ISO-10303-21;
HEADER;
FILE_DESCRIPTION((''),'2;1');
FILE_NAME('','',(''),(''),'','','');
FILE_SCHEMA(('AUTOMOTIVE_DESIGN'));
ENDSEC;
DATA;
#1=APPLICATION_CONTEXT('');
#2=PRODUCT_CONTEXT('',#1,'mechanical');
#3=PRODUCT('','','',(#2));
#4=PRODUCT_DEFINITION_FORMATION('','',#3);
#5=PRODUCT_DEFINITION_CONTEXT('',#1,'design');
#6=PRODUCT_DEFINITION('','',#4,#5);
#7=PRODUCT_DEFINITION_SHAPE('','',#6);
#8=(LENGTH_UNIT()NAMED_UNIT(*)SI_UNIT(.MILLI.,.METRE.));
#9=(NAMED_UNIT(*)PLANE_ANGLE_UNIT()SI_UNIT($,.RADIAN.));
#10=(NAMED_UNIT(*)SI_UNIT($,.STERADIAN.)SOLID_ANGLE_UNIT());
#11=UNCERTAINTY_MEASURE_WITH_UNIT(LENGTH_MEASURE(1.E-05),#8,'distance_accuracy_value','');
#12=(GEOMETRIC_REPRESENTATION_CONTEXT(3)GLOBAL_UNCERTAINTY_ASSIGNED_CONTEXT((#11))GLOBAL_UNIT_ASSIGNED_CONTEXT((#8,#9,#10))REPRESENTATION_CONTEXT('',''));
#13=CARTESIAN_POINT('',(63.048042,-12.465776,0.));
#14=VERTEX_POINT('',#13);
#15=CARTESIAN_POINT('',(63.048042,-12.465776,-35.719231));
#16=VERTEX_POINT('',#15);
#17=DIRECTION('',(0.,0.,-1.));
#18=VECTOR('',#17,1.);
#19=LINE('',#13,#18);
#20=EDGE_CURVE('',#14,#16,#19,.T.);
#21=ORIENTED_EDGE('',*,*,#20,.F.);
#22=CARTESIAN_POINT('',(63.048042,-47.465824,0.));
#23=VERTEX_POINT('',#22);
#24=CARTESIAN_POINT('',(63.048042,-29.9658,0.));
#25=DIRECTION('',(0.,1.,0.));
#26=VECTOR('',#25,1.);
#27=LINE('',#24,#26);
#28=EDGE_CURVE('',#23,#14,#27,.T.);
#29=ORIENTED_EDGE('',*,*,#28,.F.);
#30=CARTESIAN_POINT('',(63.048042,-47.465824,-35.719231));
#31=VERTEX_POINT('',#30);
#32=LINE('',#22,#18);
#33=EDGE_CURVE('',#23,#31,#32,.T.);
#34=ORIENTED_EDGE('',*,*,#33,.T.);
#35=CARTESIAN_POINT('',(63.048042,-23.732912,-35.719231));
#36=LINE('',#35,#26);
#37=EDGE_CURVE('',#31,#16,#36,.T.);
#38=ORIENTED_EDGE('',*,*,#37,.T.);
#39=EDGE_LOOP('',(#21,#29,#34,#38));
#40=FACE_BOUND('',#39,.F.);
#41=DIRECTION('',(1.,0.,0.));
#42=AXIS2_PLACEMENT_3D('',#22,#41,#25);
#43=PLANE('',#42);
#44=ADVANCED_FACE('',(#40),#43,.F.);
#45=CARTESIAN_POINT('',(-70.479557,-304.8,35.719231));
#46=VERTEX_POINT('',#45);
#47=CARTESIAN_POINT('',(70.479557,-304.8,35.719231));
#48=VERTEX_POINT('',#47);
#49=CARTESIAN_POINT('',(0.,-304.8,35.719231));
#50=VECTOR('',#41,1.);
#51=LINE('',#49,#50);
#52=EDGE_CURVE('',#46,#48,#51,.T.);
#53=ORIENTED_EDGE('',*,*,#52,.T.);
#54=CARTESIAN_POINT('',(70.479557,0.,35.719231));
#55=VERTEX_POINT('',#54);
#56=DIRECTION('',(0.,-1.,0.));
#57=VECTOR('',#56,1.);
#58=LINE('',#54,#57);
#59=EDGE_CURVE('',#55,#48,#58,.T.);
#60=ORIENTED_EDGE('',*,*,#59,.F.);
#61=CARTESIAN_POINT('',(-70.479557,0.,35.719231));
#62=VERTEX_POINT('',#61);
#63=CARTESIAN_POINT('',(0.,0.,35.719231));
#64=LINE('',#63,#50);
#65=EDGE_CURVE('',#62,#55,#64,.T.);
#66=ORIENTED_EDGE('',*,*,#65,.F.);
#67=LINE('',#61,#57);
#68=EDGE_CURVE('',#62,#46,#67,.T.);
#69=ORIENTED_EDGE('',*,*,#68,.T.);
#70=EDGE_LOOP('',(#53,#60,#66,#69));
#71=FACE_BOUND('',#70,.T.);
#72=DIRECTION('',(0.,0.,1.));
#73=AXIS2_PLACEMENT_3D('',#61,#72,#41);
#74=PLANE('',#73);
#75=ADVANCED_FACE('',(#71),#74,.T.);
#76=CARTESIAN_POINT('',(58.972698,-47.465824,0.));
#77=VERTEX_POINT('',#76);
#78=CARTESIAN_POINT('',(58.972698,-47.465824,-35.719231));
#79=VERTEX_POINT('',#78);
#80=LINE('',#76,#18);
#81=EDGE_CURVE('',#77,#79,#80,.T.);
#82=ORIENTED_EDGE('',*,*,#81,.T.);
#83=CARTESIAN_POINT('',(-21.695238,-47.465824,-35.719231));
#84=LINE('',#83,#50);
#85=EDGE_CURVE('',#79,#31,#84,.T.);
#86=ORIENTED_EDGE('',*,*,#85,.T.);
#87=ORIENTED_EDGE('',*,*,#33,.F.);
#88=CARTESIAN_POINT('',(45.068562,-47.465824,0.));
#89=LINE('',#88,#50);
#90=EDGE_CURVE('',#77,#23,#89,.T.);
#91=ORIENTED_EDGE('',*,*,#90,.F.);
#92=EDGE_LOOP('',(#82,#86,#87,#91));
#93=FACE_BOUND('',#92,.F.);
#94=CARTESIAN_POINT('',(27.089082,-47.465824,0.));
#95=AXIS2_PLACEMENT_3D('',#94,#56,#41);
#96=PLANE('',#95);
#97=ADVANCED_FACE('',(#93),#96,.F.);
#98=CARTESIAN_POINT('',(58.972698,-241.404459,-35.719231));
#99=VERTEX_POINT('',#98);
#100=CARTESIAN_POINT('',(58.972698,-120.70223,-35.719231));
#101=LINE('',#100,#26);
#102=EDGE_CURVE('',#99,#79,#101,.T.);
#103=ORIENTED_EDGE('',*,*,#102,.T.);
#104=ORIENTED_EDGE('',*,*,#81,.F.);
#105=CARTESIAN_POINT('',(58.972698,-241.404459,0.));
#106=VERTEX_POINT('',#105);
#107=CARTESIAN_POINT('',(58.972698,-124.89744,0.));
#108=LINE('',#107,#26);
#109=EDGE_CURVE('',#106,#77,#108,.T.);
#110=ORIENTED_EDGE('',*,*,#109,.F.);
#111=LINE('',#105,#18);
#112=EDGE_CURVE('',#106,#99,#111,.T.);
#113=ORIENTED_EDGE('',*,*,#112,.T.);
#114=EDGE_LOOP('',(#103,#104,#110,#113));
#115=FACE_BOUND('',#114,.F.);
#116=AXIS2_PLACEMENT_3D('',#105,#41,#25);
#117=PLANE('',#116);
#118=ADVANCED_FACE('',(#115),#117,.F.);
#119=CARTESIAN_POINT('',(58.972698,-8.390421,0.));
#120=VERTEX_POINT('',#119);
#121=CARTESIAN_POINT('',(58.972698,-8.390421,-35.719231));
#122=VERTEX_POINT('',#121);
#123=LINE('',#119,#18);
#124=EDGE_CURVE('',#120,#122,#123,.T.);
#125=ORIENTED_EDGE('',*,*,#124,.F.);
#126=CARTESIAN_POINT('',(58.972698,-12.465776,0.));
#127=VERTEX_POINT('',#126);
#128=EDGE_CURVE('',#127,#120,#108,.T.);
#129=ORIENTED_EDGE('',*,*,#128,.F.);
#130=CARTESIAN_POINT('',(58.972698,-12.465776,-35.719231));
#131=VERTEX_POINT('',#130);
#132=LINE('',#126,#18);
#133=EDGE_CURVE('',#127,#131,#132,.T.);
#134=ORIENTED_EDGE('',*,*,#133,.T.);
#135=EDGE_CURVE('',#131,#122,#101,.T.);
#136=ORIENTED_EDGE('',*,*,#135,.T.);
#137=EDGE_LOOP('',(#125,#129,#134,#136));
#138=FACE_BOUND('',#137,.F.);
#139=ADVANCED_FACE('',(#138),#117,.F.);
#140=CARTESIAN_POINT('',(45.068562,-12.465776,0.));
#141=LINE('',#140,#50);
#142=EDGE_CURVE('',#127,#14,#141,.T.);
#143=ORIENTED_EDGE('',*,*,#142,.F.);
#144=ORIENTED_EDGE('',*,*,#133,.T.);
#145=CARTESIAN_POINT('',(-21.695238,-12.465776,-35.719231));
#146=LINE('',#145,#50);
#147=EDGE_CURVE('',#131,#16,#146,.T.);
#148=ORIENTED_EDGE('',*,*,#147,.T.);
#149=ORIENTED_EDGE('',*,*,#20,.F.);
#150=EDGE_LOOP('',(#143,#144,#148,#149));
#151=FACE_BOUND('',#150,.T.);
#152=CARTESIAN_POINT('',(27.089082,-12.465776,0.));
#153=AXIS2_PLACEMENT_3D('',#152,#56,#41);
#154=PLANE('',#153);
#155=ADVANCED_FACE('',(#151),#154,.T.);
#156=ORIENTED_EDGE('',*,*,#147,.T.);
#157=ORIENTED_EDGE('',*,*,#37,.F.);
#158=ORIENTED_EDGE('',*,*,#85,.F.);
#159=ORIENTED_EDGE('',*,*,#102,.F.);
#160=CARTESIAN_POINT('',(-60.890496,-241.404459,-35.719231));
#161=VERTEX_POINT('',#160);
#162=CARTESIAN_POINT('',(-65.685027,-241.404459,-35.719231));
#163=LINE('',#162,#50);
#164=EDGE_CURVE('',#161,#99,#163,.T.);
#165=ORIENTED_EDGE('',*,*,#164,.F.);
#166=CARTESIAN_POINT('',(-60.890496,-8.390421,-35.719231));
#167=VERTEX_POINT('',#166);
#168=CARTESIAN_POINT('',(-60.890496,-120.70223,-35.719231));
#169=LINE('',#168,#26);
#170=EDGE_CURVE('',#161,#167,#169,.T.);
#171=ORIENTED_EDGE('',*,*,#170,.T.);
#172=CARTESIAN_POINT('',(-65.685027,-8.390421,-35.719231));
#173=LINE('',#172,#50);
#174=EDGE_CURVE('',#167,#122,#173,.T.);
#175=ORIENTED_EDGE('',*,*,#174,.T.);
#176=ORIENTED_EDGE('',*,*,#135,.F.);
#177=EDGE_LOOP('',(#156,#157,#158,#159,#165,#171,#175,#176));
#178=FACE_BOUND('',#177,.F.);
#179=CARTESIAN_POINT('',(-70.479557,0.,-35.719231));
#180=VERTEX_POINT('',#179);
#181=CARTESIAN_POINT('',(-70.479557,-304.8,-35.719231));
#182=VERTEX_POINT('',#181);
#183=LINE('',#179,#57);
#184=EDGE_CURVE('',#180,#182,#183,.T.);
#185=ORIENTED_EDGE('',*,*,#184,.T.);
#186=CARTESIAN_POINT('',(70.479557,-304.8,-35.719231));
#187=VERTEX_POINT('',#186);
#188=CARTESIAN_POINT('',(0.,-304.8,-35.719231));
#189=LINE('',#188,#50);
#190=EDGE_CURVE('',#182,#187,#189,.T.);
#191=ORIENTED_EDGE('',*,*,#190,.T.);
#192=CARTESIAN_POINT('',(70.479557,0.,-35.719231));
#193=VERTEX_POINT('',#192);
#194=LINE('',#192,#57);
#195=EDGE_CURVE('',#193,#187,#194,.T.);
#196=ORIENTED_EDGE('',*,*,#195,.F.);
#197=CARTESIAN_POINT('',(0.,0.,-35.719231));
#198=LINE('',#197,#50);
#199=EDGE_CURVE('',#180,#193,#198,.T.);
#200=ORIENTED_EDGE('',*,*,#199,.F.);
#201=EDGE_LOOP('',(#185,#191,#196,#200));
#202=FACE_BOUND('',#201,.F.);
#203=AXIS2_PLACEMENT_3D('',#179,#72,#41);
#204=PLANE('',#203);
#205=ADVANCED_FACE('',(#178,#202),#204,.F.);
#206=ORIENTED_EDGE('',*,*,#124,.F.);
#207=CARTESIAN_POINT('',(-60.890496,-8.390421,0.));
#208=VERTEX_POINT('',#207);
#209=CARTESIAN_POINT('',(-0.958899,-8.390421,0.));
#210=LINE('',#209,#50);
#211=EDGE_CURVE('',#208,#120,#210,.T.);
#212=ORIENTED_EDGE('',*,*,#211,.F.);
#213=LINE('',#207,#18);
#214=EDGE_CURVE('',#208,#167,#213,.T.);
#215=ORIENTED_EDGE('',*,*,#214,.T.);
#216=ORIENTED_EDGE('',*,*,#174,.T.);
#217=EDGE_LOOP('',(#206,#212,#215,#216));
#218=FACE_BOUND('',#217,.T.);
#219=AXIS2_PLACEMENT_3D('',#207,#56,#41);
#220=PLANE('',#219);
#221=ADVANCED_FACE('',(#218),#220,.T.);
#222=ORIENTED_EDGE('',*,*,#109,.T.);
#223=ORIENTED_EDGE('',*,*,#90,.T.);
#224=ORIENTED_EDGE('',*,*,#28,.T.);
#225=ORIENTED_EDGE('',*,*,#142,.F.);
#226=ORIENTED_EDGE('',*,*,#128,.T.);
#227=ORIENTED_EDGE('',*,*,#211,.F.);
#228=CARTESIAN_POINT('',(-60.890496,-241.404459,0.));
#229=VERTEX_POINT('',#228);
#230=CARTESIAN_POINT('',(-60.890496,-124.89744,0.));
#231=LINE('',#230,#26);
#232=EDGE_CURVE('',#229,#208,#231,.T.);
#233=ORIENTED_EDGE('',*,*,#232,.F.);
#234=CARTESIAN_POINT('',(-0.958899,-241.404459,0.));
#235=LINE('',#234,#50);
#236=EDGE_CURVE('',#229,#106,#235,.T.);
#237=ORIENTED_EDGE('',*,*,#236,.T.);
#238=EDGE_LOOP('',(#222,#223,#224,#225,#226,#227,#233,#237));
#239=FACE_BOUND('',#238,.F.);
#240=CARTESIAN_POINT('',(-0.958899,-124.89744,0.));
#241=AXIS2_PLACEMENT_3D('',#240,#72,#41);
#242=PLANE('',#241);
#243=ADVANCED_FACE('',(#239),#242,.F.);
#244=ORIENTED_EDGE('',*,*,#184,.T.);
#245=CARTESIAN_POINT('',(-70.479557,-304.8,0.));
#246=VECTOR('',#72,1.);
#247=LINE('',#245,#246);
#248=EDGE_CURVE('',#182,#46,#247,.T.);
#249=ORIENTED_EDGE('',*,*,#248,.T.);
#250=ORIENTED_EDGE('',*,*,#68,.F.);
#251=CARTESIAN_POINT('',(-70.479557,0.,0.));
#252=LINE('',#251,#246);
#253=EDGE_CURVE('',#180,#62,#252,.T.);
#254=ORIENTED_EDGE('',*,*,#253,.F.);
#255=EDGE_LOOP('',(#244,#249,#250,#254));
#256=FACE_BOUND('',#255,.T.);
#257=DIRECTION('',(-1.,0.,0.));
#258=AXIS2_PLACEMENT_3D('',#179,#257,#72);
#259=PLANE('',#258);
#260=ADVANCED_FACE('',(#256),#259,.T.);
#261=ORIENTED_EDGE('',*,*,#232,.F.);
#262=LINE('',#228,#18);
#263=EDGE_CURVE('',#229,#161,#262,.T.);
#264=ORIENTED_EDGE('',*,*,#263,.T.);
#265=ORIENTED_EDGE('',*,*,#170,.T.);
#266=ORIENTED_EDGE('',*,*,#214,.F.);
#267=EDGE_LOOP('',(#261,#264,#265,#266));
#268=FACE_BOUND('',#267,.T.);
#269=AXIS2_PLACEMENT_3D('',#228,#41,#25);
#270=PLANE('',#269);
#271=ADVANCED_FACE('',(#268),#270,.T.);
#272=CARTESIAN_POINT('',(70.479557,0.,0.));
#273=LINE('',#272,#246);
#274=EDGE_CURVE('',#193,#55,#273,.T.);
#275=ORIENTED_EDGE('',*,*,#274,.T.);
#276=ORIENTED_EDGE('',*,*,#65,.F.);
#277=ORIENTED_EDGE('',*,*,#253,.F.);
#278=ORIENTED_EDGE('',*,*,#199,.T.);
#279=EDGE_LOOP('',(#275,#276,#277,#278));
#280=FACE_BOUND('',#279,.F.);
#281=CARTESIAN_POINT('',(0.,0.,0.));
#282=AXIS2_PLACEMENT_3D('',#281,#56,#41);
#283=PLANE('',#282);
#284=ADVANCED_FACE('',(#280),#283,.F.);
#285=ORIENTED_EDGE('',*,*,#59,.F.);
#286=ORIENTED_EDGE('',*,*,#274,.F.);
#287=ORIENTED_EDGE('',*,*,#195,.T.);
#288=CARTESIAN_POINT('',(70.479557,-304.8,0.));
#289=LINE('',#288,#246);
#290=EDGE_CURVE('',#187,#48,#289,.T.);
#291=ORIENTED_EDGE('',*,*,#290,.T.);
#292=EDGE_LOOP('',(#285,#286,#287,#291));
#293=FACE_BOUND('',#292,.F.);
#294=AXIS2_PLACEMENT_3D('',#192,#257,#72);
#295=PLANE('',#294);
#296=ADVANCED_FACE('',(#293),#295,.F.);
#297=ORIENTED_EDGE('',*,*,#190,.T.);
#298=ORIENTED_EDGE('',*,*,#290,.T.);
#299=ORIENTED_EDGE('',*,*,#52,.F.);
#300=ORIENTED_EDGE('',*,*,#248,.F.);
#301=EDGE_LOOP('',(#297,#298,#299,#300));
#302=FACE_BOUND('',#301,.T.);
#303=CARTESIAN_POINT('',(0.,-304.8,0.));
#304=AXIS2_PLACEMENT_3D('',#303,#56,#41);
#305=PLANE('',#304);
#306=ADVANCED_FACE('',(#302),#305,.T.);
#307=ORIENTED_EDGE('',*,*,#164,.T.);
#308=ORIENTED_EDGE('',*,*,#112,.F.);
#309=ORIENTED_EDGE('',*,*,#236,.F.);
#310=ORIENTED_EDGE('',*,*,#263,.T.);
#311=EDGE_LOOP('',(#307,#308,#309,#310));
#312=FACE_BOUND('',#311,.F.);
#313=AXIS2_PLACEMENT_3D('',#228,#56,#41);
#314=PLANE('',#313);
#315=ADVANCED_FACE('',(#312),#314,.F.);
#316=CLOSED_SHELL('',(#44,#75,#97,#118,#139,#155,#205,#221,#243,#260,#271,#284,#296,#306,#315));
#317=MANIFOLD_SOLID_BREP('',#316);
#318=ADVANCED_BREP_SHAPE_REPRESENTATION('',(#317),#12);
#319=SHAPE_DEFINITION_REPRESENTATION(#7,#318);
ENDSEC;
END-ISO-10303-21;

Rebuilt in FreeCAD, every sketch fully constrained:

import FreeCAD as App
import Part
import Sketcher
Q = App.Units.Quantity

doc = App.newDocument("Part")
body = doc.addObject("PartDesign::Body", "Body")

sketch1 = body.newObject("Sketcher::SketchObject", "Sketch")
sketch1.AttachmentSupport = (doc.getObject("XZ_Plane"), [""])
sketch1.MapMode = "FlatFace"
sketch1.addGeometry(Part.LineSegment(App.Vector(-70, 36, 0), App.Vector(-70, -36, 0)), False)
sketch1.addGeometry(Part.LineSegment(App.Vector(-70, -36, 0), App.Vector(70, -36, 0)), False)
sketch1.addGeometry(Part.LineSegment(App.Vector(70, -36, 0), App.Vector(70, 36, 0)), False)
sketch1.addGeometry(Part.LineSegment(App.Vector(70, 36, 0), App.Vector(-70, 36, 0)), False)
sketch1.addConstraint(Sketcher.Constraint("Coincident", 0, 2, 1, 1))
sketch1.addConstraint(Sketcher.Constraint("Coincident", 1, 2, 2, 1))
sketch1.addConstraint(Sketcher.Constraint("Coincident", 2, 2, 3, 1))
sketch1.addConstraint(Sketcher.Constraint("Coincident", 3, 2, 0, 1))
sketch1.addConstraint(Sketcher.Constraint("Vertical", 0))
sketch1.addConstraint(Sketcher.Constraint("Horizontal", 1))
sketch1.addConstraint(Sketcher.Constraint("Vertical", 2))
sketch1.addConstraint(Sketcher.Constraint("Horizontal", 3))
sketch1.addConstraint(Sketcher.Constraint("Symmetric", 0, 2, 2, 2, -1, 1))
sketch1.addConstraint(Sketcher.Constraint("DistanceY", 0, 2, 0, 1, Q("71.438462 mm")))
sketch1.addConstraint(Sketcher.Constraint("DistanceX", 1, 1, 1, 2, Q("140.959114 mm")))
pad1 = body.newObject("PartDesign::Pad", "Pad")
pad1.Profile = sketch1
pad1.Length = Q("12 in")

sketch2 = body.newObject("Sketcher::SketchObject", "Sketch001")
sketch2.AttachmentSupport = (doc.getObject("XY_Plane"), [""])
sketch2.MapMode = "FlatFace"
sketch2.addGeometry(Part.LineSegment(App.Vector(-61, -8, 0), App.Vector(-61, -241, 0)), False)
sketch2.addGeometry(Part.LineSegment(App.Vector(-61, -241, 0), App.Vector(59, -241, 0)), False)
sketch2.addGeometry(Part.LineSegment(App.Vector(59, -241, 0), App.Vector(59, -8, 0)), False)
sketch2.addGeometry(Part.LineSegment(App.Vector(59, -8, 0), App.Vector(-61, -8, 0)), False)
sketch2.addConstraint(Sketcher.Constraint("Coincident", 0, 2, 1, 1))
sketch2.addConstraint(Sketcher.Constraint("Coincident", 1, 2, 2, 1))
sketch2.addConstraint(Sketcher.Constraint("Coincident", 2, 2, 3, 1))
sketch2.addConstraint(Sketcher.Constraint("Coincident", 3, 2, 0, 1))
sketch2.addConstraint(Sketcher.Constraint("Vertical", 0))
sketch2.addConstraint(Sketcher.Constraint("Horizontal", 1))
sketch2.addConstraint(Sketcher.Constraint("Vertical", 2))
sketch2.addConstraint(Sketcher.Constraint("Horizontal", 3))
sketch2.addConstraint(Sketcher.Constraint("DistanceY", 0, 2, 0, 1, Q("233.014038 mm")))
sketch2.addConstraint(Sketcher.Constraint("DistanceX", 1, 1, 1, 2, Q("119.863194 mm")))
sketch2.addConstraint(Sketcher.Constraint("DistanceY", 0, 2, -1, 1, Q("241.404459 mm")))
sketch2.addConstraint(Sketcher.Constraint("DistanceX", 0, 2, -1, 1, Q("60.890496 mm")))
pocket1 = body.newObject("PartDesign::Pocket", "Pocket")
pocket1.Profile = sketch2
pocket1.Length = Q("6 in")

sketch3 = body.newObject("Sketcher::SketchObject", "Sketch002")
sketch3.AttachmentSupport = (doc.getObject("XY_Plane"), [""])
sketch3.MapMode = "FlatFace"
sketch3.addGeometry(Part.LineSegment(App.Vector(27, -12, 0), App.Vector(27, -47, 0)), False)
sketch3.addGeometry(Part.LineSegment(App.Vector(27, -47, 0), App.Vector(63, -47, 0)), False)
sketch3.addGeometry(Part.LineSegment(App.Vector(63, -47, 0), App.Vector(63, -12, 0)), False)
sketch3.addGeometry(Part.LineSegment(App.Vector(63, -12, 0), App.Vector(27, -12, 0)), False)
sketch3.addConstraint(Sketcher.Constraint("Coincident", 0, 2, 1, 1))
sketch3.addConstraint(Sketcher.Constraint("Coincident", 1, 2, 2, 1))
sketch3.addConstraint(Sketcher.Constraint("Coincident", 2, 2, 3, 1))
sketch3.addConstraint(Sketcher.Constraint("Coincident", 3, 2, 0, 1))
sketch3.addConstraint(Sketcher.Constraint("Vertical", 0))
sketch3.addConstraint(Sketcher.Constraint("Horizontal", 1))
sketch3.addConstraint(Sketcher.Constraint("Vertical", 2))
sketch3.addConstraint(Sketcher.Constraint("Horizontal", 3))
sketch3.addConstraint(Sketcher.Constraint("DistanceX", 1, 1, 1, 2, Q("35.95896 mm")))
sketch3.addConstraint(Sketcher.Constraint("DistanceY", 0, 2, 0, 1, Q("35.000048 mm")))
sketch3.addConstraint(Sketcher.Constraint("DistanceX", -1, 1, 0, 2, Q("27.089082 mm")))
sketch3.addConstraint(Sketcher.Constraint("DistanceY", 0, 2, -1, 1, Q("47.465824 mm")))
pocket2 = body.newObject("PartDesign::Pocket", "Pocket001")
pocket2.Profile = sketch3
pocket2.Length = Q("10 in")

sketch4 = body.newObject("Sketcher::SketchObject", "Sketch003")
sketch4.AttachmentSupport = (doc.getObject("XZ_Plane"), [""])
sketch4.MapMode = "FlatFace"
sketch4.addGeometry(Part.Circle(App.Vector(-41, 17, 0), App.Vector(0, 0, 1), 12), False)
sketch4.addConstraint(Sketcher.Constraint("Diameter", 0, Q("23.741386 mm")))
sketch4.addConstraint(Sketcher.Constraint("DistanceX", 0, 3, -1, 1, Q("40.513758 mm")))
sketch4.addConstraint(Sketcher.Constraint("DistanceY", -1, 1, 0, 3, Q("16.780848 mm")))
pocket3 = body.newObject("PartDesign::Pocket", "Pocket002")
pocket3.Profile = sketch4
pocket3.Length = Q("12 in")

doc.recompute()
